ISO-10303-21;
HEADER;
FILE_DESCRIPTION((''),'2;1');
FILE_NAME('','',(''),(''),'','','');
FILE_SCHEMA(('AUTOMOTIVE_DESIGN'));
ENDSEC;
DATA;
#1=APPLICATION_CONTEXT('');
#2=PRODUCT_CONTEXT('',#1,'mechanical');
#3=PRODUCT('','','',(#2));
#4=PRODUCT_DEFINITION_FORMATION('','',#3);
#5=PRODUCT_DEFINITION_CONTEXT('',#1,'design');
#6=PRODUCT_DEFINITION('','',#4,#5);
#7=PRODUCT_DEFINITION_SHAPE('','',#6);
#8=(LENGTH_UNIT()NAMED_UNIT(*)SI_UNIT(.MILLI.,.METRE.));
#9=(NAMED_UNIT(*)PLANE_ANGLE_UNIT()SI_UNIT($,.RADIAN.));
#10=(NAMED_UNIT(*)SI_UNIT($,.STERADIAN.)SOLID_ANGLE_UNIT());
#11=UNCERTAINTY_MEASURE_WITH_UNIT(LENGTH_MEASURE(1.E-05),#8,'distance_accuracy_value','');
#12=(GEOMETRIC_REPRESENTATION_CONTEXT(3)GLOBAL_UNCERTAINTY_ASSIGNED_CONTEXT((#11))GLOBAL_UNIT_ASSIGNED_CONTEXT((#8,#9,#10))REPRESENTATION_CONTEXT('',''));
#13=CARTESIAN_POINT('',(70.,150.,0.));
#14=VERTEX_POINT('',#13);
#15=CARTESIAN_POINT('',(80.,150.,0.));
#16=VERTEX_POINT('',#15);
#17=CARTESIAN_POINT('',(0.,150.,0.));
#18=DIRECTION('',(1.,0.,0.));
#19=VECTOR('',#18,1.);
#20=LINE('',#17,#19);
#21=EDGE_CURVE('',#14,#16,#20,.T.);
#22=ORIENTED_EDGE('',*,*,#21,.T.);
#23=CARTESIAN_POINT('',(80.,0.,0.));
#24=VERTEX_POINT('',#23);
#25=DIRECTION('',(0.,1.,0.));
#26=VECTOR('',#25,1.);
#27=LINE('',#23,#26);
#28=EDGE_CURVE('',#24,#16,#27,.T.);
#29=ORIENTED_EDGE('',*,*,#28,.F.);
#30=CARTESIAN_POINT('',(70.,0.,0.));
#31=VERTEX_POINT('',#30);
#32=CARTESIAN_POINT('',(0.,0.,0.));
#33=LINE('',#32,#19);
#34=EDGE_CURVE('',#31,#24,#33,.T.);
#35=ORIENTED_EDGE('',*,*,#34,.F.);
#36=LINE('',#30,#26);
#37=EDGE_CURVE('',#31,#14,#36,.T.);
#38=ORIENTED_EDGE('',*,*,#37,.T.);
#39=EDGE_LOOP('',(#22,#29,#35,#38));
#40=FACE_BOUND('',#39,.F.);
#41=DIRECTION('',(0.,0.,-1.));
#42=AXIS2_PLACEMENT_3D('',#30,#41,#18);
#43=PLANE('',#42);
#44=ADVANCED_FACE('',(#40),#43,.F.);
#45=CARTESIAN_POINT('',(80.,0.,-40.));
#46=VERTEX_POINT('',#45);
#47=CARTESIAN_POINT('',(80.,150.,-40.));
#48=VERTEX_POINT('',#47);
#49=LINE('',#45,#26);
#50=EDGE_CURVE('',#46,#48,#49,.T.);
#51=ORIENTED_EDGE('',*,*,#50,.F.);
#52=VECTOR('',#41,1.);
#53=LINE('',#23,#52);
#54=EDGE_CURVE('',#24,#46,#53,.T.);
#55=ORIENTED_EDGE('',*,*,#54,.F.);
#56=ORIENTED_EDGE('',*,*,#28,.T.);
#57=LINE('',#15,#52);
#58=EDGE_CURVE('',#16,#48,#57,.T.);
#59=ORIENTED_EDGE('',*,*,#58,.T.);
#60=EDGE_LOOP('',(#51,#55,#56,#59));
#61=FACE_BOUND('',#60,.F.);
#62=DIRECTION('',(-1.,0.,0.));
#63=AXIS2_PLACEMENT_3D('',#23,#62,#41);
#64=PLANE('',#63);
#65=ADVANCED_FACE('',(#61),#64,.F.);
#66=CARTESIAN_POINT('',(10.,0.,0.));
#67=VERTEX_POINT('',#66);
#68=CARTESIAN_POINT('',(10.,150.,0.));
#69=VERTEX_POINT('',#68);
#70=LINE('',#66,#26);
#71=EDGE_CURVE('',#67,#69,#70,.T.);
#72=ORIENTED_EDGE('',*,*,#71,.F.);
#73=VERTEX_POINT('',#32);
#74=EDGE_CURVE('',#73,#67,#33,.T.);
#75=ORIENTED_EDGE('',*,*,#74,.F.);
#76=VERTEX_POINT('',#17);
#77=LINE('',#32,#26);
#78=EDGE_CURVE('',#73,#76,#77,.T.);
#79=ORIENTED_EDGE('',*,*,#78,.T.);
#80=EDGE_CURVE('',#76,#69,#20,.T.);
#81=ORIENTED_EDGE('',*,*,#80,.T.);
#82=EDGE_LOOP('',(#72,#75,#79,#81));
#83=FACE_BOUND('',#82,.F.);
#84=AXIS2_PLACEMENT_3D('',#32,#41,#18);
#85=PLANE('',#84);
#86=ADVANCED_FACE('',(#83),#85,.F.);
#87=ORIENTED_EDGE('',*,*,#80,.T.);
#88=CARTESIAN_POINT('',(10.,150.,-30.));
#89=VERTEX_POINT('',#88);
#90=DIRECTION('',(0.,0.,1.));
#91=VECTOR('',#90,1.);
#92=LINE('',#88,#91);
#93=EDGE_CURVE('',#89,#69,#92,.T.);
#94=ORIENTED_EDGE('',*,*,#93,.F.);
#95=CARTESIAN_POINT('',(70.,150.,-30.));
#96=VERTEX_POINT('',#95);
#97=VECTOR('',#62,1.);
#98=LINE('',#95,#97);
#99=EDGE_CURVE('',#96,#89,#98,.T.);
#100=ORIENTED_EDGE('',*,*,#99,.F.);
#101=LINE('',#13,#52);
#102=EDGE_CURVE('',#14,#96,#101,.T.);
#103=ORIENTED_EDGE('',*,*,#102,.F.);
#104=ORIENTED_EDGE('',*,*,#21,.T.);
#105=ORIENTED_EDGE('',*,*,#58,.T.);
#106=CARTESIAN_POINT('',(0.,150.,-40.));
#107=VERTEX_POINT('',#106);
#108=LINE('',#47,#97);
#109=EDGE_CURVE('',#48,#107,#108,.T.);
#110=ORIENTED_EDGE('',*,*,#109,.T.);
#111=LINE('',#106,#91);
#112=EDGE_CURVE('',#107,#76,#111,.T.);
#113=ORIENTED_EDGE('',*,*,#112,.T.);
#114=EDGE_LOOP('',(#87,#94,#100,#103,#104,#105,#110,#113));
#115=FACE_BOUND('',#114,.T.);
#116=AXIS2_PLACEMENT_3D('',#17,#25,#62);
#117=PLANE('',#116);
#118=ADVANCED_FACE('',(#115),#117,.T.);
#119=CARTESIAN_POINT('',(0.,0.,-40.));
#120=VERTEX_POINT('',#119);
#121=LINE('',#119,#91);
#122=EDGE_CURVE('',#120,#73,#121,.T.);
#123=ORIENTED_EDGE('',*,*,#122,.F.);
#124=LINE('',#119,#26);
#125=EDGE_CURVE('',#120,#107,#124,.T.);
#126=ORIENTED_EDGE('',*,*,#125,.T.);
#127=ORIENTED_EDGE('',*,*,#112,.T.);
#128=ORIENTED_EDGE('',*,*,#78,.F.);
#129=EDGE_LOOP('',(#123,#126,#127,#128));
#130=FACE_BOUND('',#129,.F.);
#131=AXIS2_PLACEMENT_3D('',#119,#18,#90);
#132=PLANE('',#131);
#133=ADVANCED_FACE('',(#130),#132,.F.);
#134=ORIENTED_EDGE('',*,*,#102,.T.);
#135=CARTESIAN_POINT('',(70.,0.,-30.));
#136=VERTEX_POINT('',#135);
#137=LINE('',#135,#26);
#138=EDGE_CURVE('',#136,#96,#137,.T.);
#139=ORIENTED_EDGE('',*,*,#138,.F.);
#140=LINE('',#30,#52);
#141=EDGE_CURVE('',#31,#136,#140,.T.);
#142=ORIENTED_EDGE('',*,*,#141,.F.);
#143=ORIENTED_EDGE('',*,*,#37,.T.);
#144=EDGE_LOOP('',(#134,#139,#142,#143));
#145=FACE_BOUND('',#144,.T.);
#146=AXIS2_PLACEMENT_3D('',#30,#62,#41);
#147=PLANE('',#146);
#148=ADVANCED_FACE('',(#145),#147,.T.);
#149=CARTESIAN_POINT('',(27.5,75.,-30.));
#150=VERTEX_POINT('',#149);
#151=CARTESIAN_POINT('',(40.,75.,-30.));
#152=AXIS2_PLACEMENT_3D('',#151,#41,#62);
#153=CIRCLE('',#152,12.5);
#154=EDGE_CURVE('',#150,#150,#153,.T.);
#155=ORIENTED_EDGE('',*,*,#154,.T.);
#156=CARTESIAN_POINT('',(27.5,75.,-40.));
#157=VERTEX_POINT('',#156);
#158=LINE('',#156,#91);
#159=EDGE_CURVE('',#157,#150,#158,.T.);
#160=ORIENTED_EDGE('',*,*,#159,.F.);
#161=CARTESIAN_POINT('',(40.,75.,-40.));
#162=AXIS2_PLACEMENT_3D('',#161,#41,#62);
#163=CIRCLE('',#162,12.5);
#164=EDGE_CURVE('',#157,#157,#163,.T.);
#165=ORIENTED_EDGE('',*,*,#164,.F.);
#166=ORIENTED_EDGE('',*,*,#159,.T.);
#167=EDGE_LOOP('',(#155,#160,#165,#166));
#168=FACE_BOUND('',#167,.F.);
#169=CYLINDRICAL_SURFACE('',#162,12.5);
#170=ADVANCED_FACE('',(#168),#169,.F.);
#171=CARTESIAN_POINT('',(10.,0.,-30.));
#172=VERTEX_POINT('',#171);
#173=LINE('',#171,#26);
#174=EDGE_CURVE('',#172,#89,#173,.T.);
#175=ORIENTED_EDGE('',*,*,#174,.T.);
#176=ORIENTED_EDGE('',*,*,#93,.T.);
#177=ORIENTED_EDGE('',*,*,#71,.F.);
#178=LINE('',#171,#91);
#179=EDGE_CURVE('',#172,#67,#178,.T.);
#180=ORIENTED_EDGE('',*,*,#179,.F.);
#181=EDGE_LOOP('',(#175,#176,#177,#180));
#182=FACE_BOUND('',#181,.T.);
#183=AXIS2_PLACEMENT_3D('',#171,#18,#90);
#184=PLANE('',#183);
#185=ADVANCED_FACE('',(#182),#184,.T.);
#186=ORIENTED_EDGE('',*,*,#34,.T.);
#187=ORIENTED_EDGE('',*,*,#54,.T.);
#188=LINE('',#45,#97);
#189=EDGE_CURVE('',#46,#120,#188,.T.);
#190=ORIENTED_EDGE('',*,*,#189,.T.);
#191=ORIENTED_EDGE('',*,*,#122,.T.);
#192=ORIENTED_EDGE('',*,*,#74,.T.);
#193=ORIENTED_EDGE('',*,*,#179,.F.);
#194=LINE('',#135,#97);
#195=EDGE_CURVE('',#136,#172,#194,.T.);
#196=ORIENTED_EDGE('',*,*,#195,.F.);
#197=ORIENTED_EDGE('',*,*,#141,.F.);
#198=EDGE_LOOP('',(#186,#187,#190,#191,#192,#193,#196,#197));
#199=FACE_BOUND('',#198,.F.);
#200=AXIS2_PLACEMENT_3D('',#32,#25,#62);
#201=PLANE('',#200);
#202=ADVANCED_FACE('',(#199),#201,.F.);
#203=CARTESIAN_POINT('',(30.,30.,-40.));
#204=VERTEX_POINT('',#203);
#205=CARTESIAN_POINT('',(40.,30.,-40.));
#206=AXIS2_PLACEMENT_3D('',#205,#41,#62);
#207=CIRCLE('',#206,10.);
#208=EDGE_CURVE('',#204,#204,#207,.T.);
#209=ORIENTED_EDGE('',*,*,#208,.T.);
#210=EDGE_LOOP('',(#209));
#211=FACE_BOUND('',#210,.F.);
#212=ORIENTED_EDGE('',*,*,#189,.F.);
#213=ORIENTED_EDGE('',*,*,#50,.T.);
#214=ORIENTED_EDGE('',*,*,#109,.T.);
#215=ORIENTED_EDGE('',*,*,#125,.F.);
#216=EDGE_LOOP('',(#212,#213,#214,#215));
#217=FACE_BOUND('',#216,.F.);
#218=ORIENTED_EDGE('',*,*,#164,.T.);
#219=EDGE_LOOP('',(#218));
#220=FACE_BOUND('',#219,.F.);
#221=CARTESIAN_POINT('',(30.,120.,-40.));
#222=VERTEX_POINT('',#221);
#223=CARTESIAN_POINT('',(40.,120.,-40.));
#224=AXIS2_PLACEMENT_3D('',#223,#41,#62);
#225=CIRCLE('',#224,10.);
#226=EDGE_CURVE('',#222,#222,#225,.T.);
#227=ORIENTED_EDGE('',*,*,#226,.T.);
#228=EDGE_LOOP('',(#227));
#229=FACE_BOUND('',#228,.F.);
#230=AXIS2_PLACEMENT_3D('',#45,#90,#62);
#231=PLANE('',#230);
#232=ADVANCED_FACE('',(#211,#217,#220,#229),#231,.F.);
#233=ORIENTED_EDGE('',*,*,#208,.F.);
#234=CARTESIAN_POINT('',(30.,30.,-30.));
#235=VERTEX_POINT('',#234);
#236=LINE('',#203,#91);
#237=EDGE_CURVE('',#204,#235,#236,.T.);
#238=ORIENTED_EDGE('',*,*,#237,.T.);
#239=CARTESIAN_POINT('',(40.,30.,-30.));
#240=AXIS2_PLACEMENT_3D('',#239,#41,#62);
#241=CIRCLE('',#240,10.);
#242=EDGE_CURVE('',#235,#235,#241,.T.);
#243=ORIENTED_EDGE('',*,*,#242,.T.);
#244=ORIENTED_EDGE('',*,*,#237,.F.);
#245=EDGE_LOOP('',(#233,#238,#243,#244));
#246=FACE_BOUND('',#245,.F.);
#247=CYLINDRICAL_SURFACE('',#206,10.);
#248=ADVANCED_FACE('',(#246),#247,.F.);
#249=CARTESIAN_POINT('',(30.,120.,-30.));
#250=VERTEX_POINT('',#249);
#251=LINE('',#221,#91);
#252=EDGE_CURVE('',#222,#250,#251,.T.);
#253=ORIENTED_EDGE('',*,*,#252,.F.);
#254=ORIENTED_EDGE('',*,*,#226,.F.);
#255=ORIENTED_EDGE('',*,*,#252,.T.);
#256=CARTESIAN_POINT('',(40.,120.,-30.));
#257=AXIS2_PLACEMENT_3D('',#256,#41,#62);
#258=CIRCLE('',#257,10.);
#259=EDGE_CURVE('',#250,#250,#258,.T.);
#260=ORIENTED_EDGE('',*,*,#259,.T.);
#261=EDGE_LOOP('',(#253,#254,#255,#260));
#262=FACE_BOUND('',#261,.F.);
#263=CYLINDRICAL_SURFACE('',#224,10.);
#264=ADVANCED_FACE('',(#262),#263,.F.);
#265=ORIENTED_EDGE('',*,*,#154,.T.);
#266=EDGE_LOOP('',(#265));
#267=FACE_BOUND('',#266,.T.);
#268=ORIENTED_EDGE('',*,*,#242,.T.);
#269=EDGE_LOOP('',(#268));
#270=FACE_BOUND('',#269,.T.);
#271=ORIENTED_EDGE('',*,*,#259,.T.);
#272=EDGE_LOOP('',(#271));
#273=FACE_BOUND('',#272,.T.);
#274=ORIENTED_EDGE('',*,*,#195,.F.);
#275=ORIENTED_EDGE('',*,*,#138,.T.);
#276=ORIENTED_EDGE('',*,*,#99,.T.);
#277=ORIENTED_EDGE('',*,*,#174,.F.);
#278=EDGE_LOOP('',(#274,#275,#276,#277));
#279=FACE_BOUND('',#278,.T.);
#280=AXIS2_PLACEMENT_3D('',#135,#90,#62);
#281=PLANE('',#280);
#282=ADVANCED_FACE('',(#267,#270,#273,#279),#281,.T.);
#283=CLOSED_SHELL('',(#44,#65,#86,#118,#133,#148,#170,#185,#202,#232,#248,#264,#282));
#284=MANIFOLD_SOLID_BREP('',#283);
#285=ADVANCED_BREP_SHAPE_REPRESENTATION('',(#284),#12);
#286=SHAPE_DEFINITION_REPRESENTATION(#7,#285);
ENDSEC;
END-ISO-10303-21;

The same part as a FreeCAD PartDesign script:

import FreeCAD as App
import Part
import Sketcher
from FreeCAD import Vector
Q = App.Units.Quantity

doc = App.newDocument("Part")
params = doc.addObject("Spreadsheet::Sheet", "Params")
for row, (alias, value) in enumerate([
    ("sketch1_width", "60 mm"),
    ("sketch1_width2", "80 mm"),
    ("sketch1_height", "40 mm"),
    ("sketch1_height2", "30 mm"),
    ("pad1_length", "150 mm"),
    ("sketch2_diameter", "20 mm"),
    ("sketch2_diameter2", "25 mm"),
    ("pocket1_length", "150 mm"),
], start=1):
    params.set(f"A{row}", alias)
    params.set(f"B{row}", "=" + value)
    params.setAlias(f"B{row}", alias)

body = doc.addObject("PartDesign::Body", "Body")

sketch1 = body.newObject("Sketcher::SketchObject", "Sketch")
sketch1.AttachmentSupport = (doc.getObject("XZ_Plane"), [""])
sketch1.MapMode = "FlatFace"
sketch1.addGeometry(Part.LineSegment(Vector(0, -40, 0), Vector(0, 0, 0)), False)
sketch1.addGeometry(Part.LineSegment(Vector(0, 0, 0), Vector(10, 0, 0)), False)
sketch1.addGeometry(Part.LineSegment(Vector(10, 0, 0), Vector(10, -30, 0)), False)
sketch1.addGeometry(Part.LineSegment(Vector(10, -30, 0), Vector(70, -30, 0)), False)
sketch1.addGeometry(Part.LineSegment(Vector(70, -30, 0), Vector(70, 0, 0)), False)
sketch1.addGeometry(Part.LineSegment(Vector(70, 0, 0), Vector(80, 0, 0)), False)
sketch1.addGeometry(Part.LineSegment(Vector(80, 0, 0), Vector(80, -40, 0)), False)
sketch1.addGeometry(Part.LineSegment(Vector(80, -40, 0), Vector(0, -40, 0)), False)
sketch1.addConstraint(Sketcher.Constraint("Coincident", 0, 2, 1, 1))
sketch1.addConstraint(Sketcher.Constraint("Coincident", 1, 2, 2, 1))
sketch1.addConstraint(Sketcher.Constraint("Coincident", 2, 2, 3, 1))
sketch1.addConstraint(Sketcher.Constraint("Coincident", 3, 2, 4, 1))
sketch1.addConstraint(Sketcher.Constraint("Coincident", 4, 2, 5, 1))
sketch1.addConstraint(Sketcher.Constraint("Coincident", 5, 2, 6, 1))
sketch1.addConstraint(Sketcher.Constraint("Coincident", 6, 2, 7, 1))
sketch1.addConstraint(Sketcher.Constraint("Coincident", 7, 2, 0, 1))
sketch1.addConstraint(Sketcher.Constraint("Vertical", 0))
sketch1.addConstraint(Sketcher.Constraint("Horizontal", 1))
sketch1.addConstraint(Sketcher.Constraint("Vertical", 2))
sketch1.addConstraint(Sketcher.Constraint("Horizontal", 3))
sketch1.addConstraint(Sketcher.Constraint("Vertical", 4))
sketch1.addConstraint(Sketcher.Constraint("Horizontal", 5))
sketch1.addConstraint(Sketcher.Constraint("Vertical", 6))
sketch1.addConstraint(Sketcher.Constraint("Horizontal", 7))
sketch1.addConstraint(Sketcher.Constraint("Coincident", 0, 2, -1, 1))
sketch1.addConstraint(Sketcher.Constraint("PointOnObject", 4, 2, -1))
sketch1.addConstraint(Sketcher.Constraint("Equal", 1, 5))
sketch1.addConstraint(Sketcher.Constraint("DistanceX", 3, 1, 3, 2, Q("60 mm")))
sketch1.addConstraint(Sketcher.Constraint("DistanceX", 7, 2, 7, 1, Q("80 mm")))
sketch1.addConstraint(Sketcher.Constraint("DistanceY", 0, 1, 0, 2, Q("40 mm")))
sketch1.addConstraint(Sketcher.Constraint("DistanceY", 2, 2, 2, 1, Q("30 mm")))
sketch1.setExpression("Constraints[19]", "Params.sketch1_width")
sketch1.setExpression("Constraints[20]", "Params.sketch1_width2")
sketch1.setExpression("Constraints[21]", "Params.sketch1_height")
sketch1.setExpression("Constraints[22]", "Params.sketch1_height2")
pad1 = body.newObject("PartDesign::Pad", "Pad")
pad1.Profile = sketch1
pad1.setExpression("Length", "Params.pad1_length")
pad1.Reversed = True

sketch2 = body.newObject("Sketcher::SketchObject", "Sketch001")
sketch2.AttachmentSupport = (doc.getObject("XY_Plane"), [""])
sketch2.MapMode = "FlatFace"
sketch2.AttachmentOffset = App.Placement(Vector(0, 0, -40), App.Rotation())
sketch2.addGeometry(Part.Circle(Vector(40, 120, 0), Vector(0, 0, 1), 10), False)
sketch2.addGeometry(Part.Circle(Vector(40, 30, 0), Vector(0, 0, 1), 10), False)
sketch2.addGeometry(Part.Circle(Vector(40, 75, 0), Vector(0, 0, 1), 12.5), False)
sketch2.addConstraint(Sketcher.Constraint("Equal", 0, 1))
sketch2.addConstraint(Sketcher.Constraint("Vertical", 0, 3, 1, 3))
sketch2.addConstraint(Sketcher.Constraint("Vertical", 1, 3, 2, 3))
sketch2.addConstraint(Sketcher.Constraint("Diameter", 0, Q("20 mm")))
sketch2.addConstraint(Sketcher.Constraint("Diameter", 2, Q("25 mm")))
sketch2.addConstraint(Sketcher.Constraint("DistanceX", -1, 1, 0, 3, Q("40 mm")))
sketch2.addConstraint(Sketcher.Constraint("DistanceY", -1, 1, 0, 3, Q("120 mm")))
sketch2.addConstraint(Sketcher.Constraint("DistanceY", -1, 1, 1, 3, Q("30 mm")))
sketch2.addConstraint(Sketcher.Constraint("DistanceY", -1, 1, 2, 3, Q("75 mm")))
sketch2.setExpression("Constraints[3]", "Params.sketch2_diameter")
sketch2.setExpression("Constraints[4]", "Params.sketch2_diameter2")
pocket1 = body.newObject("PartDesign::Pocket", "Pocket")
pocket1.Profile = sketch2
pocket1.setExpression("Length", "Params.pocket1_length")
pocket1.Reversed = True

doc.recompute()
